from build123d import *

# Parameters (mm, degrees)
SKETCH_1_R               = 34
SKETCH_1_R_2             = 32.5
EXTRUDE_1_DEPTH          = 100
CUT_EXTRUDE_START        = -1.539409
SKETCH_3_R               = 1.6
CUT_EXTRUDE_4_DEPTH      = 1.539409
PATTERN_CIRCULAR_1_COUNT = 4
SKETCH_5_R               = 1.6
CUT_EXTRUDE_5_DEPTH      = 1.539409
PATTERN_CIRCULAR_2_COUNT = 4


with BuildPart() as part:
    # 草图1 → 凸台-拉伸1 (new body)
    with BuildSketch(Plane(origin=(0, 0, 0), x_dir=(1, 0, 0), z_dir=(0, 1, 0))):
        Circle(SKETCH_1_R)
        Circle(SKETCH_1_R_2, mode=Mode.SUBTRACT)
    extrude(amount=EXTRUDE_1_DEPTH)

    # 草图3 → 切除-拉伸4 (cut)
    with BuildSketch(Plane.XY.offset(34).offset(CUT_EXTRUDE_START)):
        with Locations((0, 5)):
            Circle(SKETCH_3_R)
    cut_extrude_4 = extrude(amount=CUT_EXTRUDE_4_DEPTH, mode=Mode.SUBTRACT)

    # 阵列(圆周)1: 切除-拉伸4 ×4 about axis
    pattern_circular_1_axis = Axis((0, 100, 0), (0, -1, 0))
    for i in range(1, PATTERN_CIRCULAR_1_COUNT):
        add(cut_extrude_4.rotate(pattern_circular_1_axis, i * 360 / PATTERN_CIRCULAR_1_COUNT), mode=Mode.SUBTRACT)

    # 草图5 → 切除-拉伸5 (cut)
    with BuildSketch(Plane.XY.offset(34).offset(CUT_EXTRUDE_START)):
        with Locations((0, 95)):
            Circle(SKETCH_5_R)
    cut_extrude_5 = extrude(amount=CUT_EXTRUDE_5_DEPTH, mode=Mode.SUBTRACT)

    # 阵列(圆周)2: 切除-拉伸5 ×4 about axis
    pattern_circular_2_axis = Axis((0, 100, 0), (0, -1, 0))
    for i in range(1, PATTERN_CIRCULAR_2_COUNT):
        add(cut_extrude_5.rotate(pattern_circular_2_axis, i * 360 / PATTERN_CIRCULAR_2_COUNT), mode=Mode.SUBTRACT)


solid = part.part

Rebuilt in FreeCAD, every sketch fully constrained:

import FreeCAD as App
import Part
import Sketcher
from FreeCAD import Vector
Q = App.Units.Quantity

doc = App.newDocument("Part")
params = doc.addObject("Spreadsheet::Sheet", "Params")
for row, (alias, value) in enumerate([
    ("sketch1_diameter", "68 mm"),
    ("sketch1_diameter2", "65 mm"),
    ("pad1_length", "100 mm"),
    ("sketch2_diameter", "3.2 mm"),
    ("pocket1_length", "1.539409 mm"),
    ("sketch3_diameter", "3.2 mm"),
    ("pocket2_length", "1.539409 mm"),
], start=1):
    params.set(f"A{row}", alias)
    params.set(f"B{row}", "=" + value)
    params.setAlias(f"B{row}", alias)

body = doc.addObject("PartDesign::Body", "Body")

# Sketch on XZ plane
sketch1 = doc.addObject("Sketcher::SketchObject", "Sketch")
body.addObject(sketch1)
sketch1.AttachmentSupport = (doc.XZ_Plane, [""])
sketch1.MapMode = "FlatFace"
sketch1.addGeometry([
    Part.Circle(Vector(0, 0, 0), Vector(0, 0, 1), 34),
    Part.Circle(Vector(0, 0, 0), Vector(0, 0, 1), 32),
], False)
sketch1.addConstraint([
    Sketcher.Constraint("Coincident", 0, 3, -1, 1),
    Sketcher.Constraint("Coincident", 1, 3, -1, 1),
    Sketcher.Constraint("Diameter", 0, Q("68 mm")),
    Sketcher.Constraint("Diameter", 1, Q("65 mm")),
])
sketch1.setExpression("Constraints[2]", "Params.sketch1_diameter")
sketch1.setExpression("Constraints[3]", "Params.sketch1_diameter2")
pad1 = doc.addObject("PartDesign::Pad", "Pad")
body.addObject(pad1)
pad1.Profile = sketch1
pad1.setExpression("Length", "Params.pad1_length")
pad1.Reversed = True

# Sketch on XY plane
sketch2 = doc.addObject("Sketcher::SketchObject", "Sketch001")
body.addObject(sketch2)
sketch2.AttachmentSupport = (doc.XY_Plane, [""])
sketch2.MapMode = "FlatFace"
sketch2.AttachmentOffset = App.Placement(Vector(0, 0, 32.460591), App.Rotation())
sketch2.addGeometry(Part.Circle(Vector(0, 5, 0), Vector(0, 0, 1), 1.6), False)
sketch2.addConstraint([
    Sketcher.Constraint("PointOnObject", 0, 3, -2),
    Sketcher.Constraint("Diameter", 0, Q("3.2 mm")),
    Sketcher.Constraint("DistanceY", -1, 1, 0, 3, Q("5 mm")),
])
sketch2.setExpression("Constraints[1]", "Params.sketch2_diameter")
pocket1 = doc.addObject("PartDesign::Pocket", "Pocket")
body.addObject(pocket1)
pocket1.Profile = sketch2
pocket1.setExpression("Length", "Params.pocket1_length")
pocket1.Reversed = True
doc.recompute()

polarpattern = doc.addObject("PartDesign::PolarPattern", "PolarPattern")
body.addObject(polarpattern)
polarpattern.Originals = [pocket1]
polarpattern.Axis = (doc.Y_Axis, [""])
polarpattern.Angle = 360
polarpattern.Occurrences = 4
body.Tip = polarpattern

# Sketch on XY plane
sketch3 = doc.addObject("Sketcher::SketchObject", "Sketch002")
body.addObject(sketch3)
sketch3.AttachmentSupport = (doc.XY_Plane, [""])
sketch3.MapMode = "FlatFace"
sketch3.AttachmentOffset = App.Placement(Vector(0, 0, 32.460591), App.Rotation())
sketch3.addGeometry(Part.Circle(Vector(0, 95, 0), Vector(0, 0, 1), 1.6), False)
sketch3.addConstraint([
    Sketcher.Constraint("PointOnObject", 0, 3, -2),
    Sketcher.Constraint("Diameter", 0, Q("3.2 mm")),
    Sketcher.Constraint("DistanceY", -1, 1, 0, 3, Q("95 mm")),
])
sketch3.setExpression("Constraints[1]", "Params.sketch3_diameter")
pocket2 = doc.addObject("PartDesign::Pocket", "Pocket001")
body.addObject(pocket2)
pocket2.Profile = sketch3
pocket2.setExpression("Length", "Params.pocket2_length")
pocket2.Reversed = True
doc.recompute()

polarpattern2 = doc.addObject("PartDesign::PolarPattern", "PolarPattern001")
body.addObject(polarpattern2)
polarpattern2.Originals = [pocket2]
polarpattern2.Axis = (doc.Y_Axis, [""])
polarpattern2.Angle = 360
polarpattern2.Occurrences = 4
body.Tip = polarpattern2

doc.recompute()
